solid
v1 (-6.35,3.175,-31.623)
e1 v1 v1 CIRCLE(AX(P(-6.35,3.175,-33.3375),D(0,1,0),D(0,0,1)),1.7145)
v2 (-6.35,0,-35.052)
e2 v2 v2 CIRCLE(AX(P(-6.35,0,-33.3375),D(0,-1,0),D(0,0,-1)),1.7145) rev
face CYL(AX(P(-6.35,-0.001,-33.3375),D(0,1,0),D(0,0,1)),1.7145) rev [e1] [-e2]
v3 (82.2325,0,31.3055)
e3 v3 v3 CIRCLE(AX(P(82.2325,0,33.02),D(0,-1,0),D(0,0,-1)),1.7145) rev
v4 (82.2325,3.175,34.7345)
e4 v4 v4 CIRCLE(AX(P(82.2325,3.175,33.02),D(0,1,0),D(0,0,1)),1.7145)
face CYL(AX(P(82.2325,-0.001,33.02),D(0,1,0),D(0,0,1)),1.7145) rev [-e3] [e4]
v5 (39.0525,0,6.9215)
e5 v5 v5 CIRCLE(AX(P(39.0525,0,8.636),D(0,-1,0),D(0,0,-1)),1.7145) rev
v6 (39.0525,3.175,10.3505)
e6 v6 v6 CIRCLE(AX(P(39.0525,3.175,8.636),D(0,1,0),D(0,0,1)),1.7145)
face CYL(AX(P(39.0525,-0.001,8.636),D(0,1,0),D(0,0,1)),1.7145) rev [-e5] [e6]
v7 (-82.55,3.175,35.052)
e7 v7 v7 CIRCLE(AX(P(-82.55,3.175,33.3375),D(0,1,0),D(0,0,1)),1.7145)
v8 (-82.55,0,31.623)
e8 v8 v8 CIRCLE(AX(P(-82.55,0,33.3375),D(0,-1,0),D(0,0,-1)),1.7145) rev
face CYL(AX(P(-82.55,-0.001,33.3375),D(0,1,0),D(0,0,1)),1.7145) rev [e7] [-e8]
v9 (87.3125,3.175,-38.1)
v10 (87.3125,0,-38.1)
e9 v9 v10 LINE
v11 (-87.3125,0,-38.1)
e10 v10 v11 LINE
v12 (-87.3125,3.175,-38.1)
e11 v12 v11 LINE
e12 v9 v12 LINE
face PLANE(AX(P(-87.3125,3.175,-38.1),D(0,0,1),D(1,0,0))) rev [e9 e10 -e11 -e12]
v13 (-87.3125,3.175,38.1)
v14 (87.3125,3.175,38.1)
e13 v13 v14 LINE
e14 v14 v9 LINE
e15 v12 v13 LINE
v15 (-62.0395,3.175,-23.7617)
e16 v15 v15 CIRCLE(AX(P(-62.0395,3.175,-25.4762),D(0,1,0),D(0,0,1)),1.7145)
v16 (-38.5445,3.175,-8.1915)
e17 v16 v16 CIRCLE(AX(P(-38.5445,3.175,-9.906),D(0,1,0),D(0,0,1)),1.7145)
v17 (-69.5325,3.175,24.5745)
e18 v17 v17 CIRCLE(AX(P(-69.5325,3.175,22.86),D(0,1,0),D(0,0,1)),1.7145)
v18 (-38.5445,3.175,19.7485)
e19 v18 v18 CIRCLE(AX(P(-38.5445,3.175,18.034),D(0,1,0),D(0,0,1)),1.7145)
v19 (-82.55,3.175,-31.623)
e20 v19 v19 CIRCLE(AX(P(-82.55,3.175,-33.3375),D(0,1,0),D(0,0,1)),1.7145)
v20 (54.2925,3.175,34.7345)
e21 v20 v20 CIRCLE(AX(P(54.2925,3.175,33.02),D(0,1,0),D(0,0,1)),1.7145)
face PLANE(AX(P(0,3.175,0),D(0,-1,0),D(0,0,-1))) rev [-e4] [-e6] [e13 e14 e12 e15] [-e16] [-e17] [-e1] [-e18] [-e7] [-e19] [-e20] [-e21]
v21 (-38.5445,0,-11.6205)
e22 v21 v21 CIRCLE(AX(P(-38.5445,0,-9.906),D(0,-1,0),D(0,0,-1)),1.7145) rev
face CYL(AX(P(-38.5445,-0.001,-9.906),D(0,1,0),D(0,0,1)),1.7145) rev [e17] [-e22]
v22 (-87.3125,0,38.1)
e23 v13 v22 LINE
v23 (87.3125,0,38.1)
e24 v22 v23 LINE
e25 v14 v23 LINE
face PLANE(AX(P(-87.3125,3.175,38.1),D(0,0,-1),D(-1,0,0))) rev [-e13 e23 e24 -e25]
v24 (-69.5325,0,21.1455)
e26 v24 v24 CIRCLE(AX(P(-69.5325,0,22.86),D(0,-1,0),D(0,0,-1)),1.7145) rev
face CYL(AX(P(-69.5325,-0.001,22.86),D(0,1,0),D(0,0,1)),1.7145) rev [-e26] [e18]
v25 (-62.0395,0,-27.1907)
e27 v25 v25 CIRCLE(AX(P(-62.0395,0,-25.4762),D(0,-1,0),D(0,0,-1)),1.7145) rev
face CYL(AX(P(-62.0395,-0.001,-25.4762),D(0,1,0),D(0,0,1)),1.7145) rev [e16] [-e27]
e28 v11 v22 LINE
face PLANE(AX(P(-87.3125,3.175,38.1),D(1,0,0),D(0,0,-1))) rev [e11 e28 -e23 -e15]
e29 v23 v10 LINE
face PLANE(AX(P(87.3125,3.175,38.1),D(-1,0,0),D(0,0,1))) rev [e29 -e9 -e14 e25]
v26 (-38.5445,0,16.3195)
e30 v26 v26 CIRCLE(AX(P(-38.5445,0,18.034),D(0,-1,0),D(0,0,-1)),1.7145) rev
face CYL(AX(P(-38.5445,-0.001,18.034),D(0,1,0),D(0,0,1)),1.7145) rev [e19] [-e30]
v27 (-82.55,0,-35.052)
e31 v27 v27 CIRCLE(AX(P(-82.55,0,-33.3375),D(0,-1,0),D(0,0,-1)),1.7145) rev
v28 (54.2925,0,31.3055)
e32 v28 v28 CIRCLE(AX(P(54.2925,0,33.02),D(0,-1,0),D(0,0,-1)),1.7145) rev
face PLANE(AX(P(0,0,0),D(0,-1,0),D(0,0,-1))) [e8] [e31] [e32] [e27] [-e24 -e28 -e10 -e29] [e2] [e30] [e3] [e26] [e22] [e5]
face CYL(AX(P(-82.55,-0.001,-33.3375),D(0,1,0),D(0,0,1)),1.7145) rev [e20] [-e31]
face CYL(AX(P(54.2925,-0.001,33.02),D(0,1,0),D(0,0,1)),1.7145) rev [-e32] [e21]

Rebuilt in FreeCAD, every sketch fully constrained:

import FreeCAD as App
import Part
import Sketcher
from FreeCAD import Vector
Q = App.Units.Quantity


def add_polygon(sketch, points):
    """Adds a closed chain of lines whose ends are joined by coincident constraints."""
    first, n = sketch.GeometryCount, len(points)
    for a, b in zip(points, points[1:] + points[:1]):
        sketch.addGeometry(Part.LineSegment(App.Vector(*a, 0), App.Vector(*b, 0)), False)
    for i in range(n):
        sketch.addConstraint(Sketcher.Constraint("Coincident", first + i, 2, first + (i + 1) % n, 1))

doc = App.newDocument("Part")
body = doc.addObject("PartDesign::Body", "Body")

sketch1 = body.newObject("Sketcher::SketchObject", "Sketch")
sketch1.AttachmentSupport = (doc.getObject("XZ_Plane"), [""])
sketch1.MapMode = "FlatFace"
add_polygon(sketch1, [(-87, -38), (-87, 38), (87, 38), (87, -38)])
sketch1.addConstraint([
    Sketcher.Constraint("Vertical", 0),
    Sketcher.Constraint("Horizontal", 1),
    Sketcher.Constraint("Vertical", 2),
    Sketcher.Constraint("Horizontal", 3),
    Sketcher.Constraint("Symmetric", 0, 2, 2, 2, -1, 1),
    Sketcher.Constraint("DistanceY", 0, 1, 0, 2, Q("3 in")),
    Sketcher.Constraint("DistanceX", 1, 1, 1, 2, Q("6.875 in")),
])
pad1 = body.newObject("PartDesign::Pad", "Pad")
pad1.Profile = sketch1
pad1.Length = Q("0.125 in")
pad1.Reversed = True

sketch2 = body.newObject("Sketcher::SketchObject", "Sketch001")
sketch2.AttachmentSupport = (doc.getObject("XZ_Plane"), [""])
sketch2.MapMode = "FlatFace"
sketch2.AttachmentOffset = App.Placement(Vector(0, 0, -0.125 * 25.4), App.Rotation())
sketch2.addGeometry(Part.Circle(Vector(-82.5, -33.3, 0), Vector(0, 0, 1), 1.7), False)
sketch2.addConstraint([
    Sketcher.Constraint("Diameter", 0, Q("0.135 in")),
    Sketcher.Constraint("DistanceX", 0, 3, -1, 1, Q("3.25 in")),
    Sketcher.Constraint("DistanceY", 0, 3, -1, 1, Q("1.3125 in")),
])
pocket1 = body.newObject("PartDesign::Pocket", "Pocket")
pocket1.Profile = sketch2
pocket1.Type = "UpToFirst"
pocket1.Reversed = True

sketch3 = body.newObject("Sketcher::SketchObject", "Sketch002")
sketch3.AttachmentSupport = (doc.getObject("XZ_Plane"), [""])
sketch3.MapMode = "FlatFace"
sketch3.AttachmentOffset = App.Placement(Vector(0, 0, -0.125 * 25.4), App.Rotation())
sketch3.addGeometry(Part.Circle(Vector(-82.5, 33.3, 0), Vector(0, 0, 1), 1.7), False)
sketch3.addConstraint([
    Sketcher.Constraint("Diameter", 0, Q("0.135 in")),
    Sketcher.Constraint("DistanceX", 0, 3, -1, 1, Q("3.25 in")),
    Sketcher.Constraint("DistanceY", -1, 1, 0, 3, Q("1.3125 in")),
])
pocket2 = body.newObject("PartDesign::Pocket", "Pocket001")
pocket2.Profile = sketch3
pocket2.Type = "UpToFirst"
pocket2.Reversed = True

sketch4 = body.newObject("Sketcher::SketchObject", "Sketch003")
sketch4.AttachmentSupport = (doc.getObject("XZ_Plane"), [""])
sketch4.MapMode = "FlatFace"
sketch4.AttachmentOffset = App.Placement(Vector(0, 0, -0.125 * 25.4), App.Rotation())
sketch4.addGeometry(Part.Circle(Vector(-6.3, -33.3, 0), Vector(0, 0, 1), 1.7), False)
sketch4.addConstraint([
    Sketcher.Constraint("Diameter", 0, Q("0.135 in")),
    Sketcher.Constraint("DistanceX", 0, 3, -1, 1, Q("0.25 in")),
    Sketcher.Constraint("DistanceY", 0, 3, -1, 1, Q("1.3125 in")),
])
pocket3 = body.newObject("PartDesign::Pocket", "Pocket002")
pocket3.Profile = sketch4
pocket3.Type = "UpToFirst"
pocket3.Reversed = True

sketch5 = body.newObject("Sketcher::SketchObject", "Sketch004")
sketch5.AttachmentSupport = (doc.getObject("XZ_Plane"), [""])
sketch5.MapMode = "FlatFace"
sketch5.AttachmentOffset = App.Placement(Vector(0, 0, -0.125 * 25.4), App.Rotation())
sketch5.addGeometry(Part.Circle(Vector(-38.5, 18, 0), Vector(0, 0, 1), 1.7), False)
sketch5.addConstraint([
    Sketcher.Constraint("Diameter", 0, Q("0.135 in")),
    Sketcher.Constraint("DistanceY", -1, 1, 0, 3, Q("0.71 in")),
    Sketcher.Constraint("DistanceX", 0, 3, -1, 1, Q("1.5175 in")),
])
pocket4 = body.newObject("PartDesign::Pocket", "Pocket003")
pocket4.Profile = sketch5
pocket4.Type = "UpToFirst"
pocket4.Reversed = True

sketch6 = body.newObject("Sketcher::SketchObject", "Sketch005")
sketch6.AttachmentSupport = (doc.getObject("XZ_Plane"), [""])
sketch6.MapMode = "FlatFace"
sketch6.AttachmentOffset = App.Placement(Vector(0, 0, -0.125 * 25.4), App.Rotation())
sketch6.addGeometry(Part.Circle(Vector(-38.5, -9.9, 0), Vector(0, 0, 1), 1.7), False)
sketch6.addConstraint([
    Sketcher.Constraint("Diameter", 0, Q("0.135 in")),
    Sketcher.Constraint("DistanceY", 0, 3, -1, 1, Q("0.39 in")),
    Sketcher.Constraint("DistanceX", 0, 3, -1, 1, Q("1.5175 in")),
])
pocket5 = body.newObject("PartDesign::Pocket", "Pocket004")
pocket5.Profile = sketch6
pocket5.Type = "UpToFirst"
pocket5.Reversed = True

sketch7 = body.newObject("Sketcher::SketchObject", "Sketch006")
sketch7.AttachmentSupport = (doc.getObject("XZ_Plane"), [""])
sketch7.MapMode = "FlatFace"
sketch7.AttachmentOffset = App.Placement(Vector(0, 0, -0.125 * 25.4), App.Rotation())
sketch7.addGeometry(Part.Circle(Vector(-69.5, 22.9, 0), Vector(0, 0, 1), 1.7), False)
sketch7.addConstraint([
    Sketcher.Constraint("Diameter", 0, Q("0.135 in")),
    Sketcher.Constraint("DistanceY", -1, 1, 0, 3, Q("0.9 in")),
    Sketcher.Constraint("DistanceX", 0, 3, -1, 1, Q("2.7375 in")),
])
pocket6 = body.newObject("PartDesign::Pocket", "Pocket005")
pocket6.Profile = sketch7
pocket6.Type = "UpToFirst"
pocket6.Reversed = True

sketch8 = body.newObject("Sketcher::SketchObject", "Sketch007")
sketch8.AttachmentSupport = (doc.getObject("XZ_Plane"), [""])
sketch8.MapMode = "FlatFace"
sketch8.AttachmentOffset = App.Placement(Vector(0, 0, -0.125 * 25.4), App.Rotation())
sketch8.addGeometry(Part.Circle(Vector(-62, -25.5, 0), Vector(0, 0, 1), 1.7), False)
sketch8.addConstraint([
    Sketcher.Constraint("Diameter", 0, Q("0.135 in")),
    Sketcher.Constraint("DistanceY", 0, 3, -1, 1, Q("1.003 in")),
    Sketcher.Constraint("DistanceX", 0, 3, -1, 1, Q("2.4425 in")),
])
pocket7 = body.newObject("PartDesign::Pocket", "Pocket006")
pocket7.Profile = sketch8
pocket7.Type = "UpToFirst"
pocket7.Reversed = True

sketch9 = body.newObject("Sketcher::SketchObject", "Sketch008")
sketch9.AttachmentSupport = (doc.getObject("XZ_Plane"), [""])
sketch9.MapMode = "FlatFace"
sketch9.AttachmentOffset = App.Placement(Vector(0, 0, -0.125 * 25.4), App.Rotation())
sketch9.addGeometry(Part.Circle(Vector(82.2, 33, 0), Vector(0, 0, 1), 1.7), False)
sketch9.addConstraint([
    Sketcher.Constraint("Diameter", 0, Q("0.135 in")),
    Sketcher.Constraint("DistanceY", -1, 1, 0, 3, Q("1.3 in")),
    Sketcher.Constraint("DistanceX", -1, 1, 0, 3, Q("3.2375 in")),
])
pocket8 = body.newObject("PartDesign::Pocket", "Pocket007")
pocket8.Profile = sketch9
pocket8.Type = "UpToFirst"
pocket8.Reversed = True

sketch10 = body.newObject("Sketcher::SketchObject", "Sketch009")
sketch10.AttachmentSupport = (doc.getObject("XZ_Plane"), [""])
sketch10.MapMode = "FlatFace"
sketch10.AttachmentOffset = App.Placement(Vector(0, 0, -0.125 * 25.4), App.Rotation())
sketch10.addGeometry(Part.Circle(Vector(54.3, 33, 0), Vector(0, 0, 1), 1.7), False)
sketch10.addConstraint([
    Sketcher.Constraint("Diameter", 0, Q("0.135 in")),
    Sketcher.Constraint("DistanceY", -1, 1, 0, 3, Q("1.3 in")),
    Sketcher.Constraint("DistanceX", -1, 1, 0, 3, Q("2.1375 in")),
])
pocket9 = body.newObject("PartDesign::Pocket", "Pocket008")
pocket9.Profile = sketch10
pocket9.Type = "UpToFirst"
pocket9.Reversed = True

sketch11 = body.newObject("Sketcher::SketchObject", "Sketch010")
sketch11.AttachmentSupport = (doc.getObject("XZ_Plane"), [""])
sketch11.MapMode = "FlatFace"
sketch11.AttachmentOffset = App.Placement(Vector(0, 0, -0.125 * 25.4), App.Rotation())
sketch11.addGeometry(Part.Circle(Vector(39.1, 8.6, 0), Vector(0, 0, 1), 1.7), False)
sketch11.addConstraint([
    Sketcher.Constraint("Diameter", 0, Q("0.135 in")),
    Sketcher.Constraint("DistanceY", -1, 1, 0, 3, Q("0.34 in")),
    Sketcher.Constraint("DistanceX", -1, 1, 0, 3, Q("1.5375 in")),
])
pocket10 = body.newObject("PartDesign::Pocket", "Pocket009")
pocket10.Profile = sketch11
pocket10.Type = "UpToFirst"
pocket10.Reversed = True

doc.recompute()
